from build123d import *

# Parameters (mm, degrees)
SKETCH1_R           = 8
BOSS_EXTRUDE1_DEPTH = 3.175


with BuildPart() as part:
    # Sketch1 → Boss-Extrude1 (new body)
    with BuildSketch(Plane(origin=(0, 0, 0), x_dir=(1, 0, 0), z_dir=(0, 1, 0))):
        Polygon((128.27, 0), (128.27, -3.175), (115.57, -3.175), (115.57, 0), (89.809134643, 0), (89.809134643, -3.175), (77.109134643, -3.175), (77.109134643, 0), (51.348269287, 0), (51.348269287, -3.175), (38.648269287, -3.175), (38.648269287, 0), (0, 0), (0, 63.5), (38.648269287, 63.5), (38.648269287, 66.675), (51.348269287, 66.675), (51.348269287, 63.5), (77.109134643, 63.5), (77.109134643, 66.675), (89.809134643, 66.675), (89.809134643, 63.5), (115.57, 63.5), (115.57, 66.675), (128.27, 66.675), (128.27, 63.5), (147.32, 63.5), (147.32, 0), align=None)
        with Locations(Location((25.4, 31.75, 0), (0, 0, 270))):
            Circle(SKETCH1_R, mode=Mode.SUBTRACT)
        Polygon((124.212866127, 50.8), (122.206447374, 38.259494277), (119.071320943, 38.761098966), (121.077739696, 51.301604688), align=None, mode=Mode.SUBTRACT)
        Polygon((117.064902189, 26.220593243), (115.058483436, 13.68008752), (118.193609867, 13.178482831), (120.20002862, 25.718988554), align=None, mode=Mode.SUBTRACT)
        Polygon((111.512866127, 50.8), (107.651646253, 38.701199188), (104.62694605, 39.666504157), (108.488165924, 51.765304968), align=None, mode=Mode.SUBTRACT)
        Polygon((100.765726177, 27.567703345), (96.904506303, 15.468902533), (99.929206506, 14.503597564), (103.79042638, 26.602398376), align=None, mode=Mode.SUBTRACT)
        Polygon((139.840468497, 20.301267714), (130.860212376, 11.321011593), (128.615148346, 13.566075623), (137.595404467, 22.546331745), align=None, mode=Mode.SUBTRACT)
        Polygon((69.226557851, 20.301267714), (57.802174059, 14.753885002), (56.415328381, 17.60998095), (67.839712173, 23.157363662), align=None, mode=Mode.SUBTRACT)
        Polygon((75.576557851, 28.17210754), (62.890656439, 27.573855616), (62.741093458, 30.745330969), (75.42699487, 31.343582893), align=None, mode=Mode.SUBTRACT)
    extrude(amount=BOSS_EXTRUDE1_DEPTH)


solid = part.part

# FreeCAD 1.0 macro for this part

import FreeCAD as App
import Part
import Sketcher
Q = App.Units.Quantity


def add_polygon(sketch, points):
    """Adds a closed chain of lines whose ends are joined by coincident constraints."""
    first, n = sketch.GeometryCount, len(points)
    for a, b in zip(points, points[1:] + points[:1]):
        sketch.addGeometry(Part.LineSegment(App.Vector(*a, 0), App.Vector(*b, 0)), False)
    for i in range(n):
        sketch.addConstraint(Sketcher.Constraint("Coincident", first + i, 2, first + (i + 1) % n, 1))

doc = App.newDocument("Part")
body = doc.addObject("PartDesign::Body", "Body")

# Sketch on XZ plane
sketch1 = body.newObject("Sketcher::SketchObject", "Sketch")
sketch1.AttachmentSupport = (doc.getObject("XZ_Plane"), [""])
sketch1.MapMode = "FlatFace"
add_polygon(sketch1, [(128.27, 3.175), (128.27, 0), (147.32, 0), (147.32, -63.5), (128.27, -63.5), (128.27, -66.675), (115.57, -66.675), (115.57, -63.5), (89.809135, -63.5), (89.809135, -66.675), (77.109135, -66.675), (77.109135, -63.5), (51.348269, -63.5), (51.348269, -66.675), (38.648269, -66.675), (38.648269, -63.5), (0, -63.5), (0, 0), (38.648269, 0), (38.648269, 3.175), (51.348269, 3.175), (51.348269, 0), (77.109135, 0), (77.109135, 3.175), (89.809135, 3.175), (89.809135, 0), (115.57, 0), (115.57, 3.175)])  # lines 0-27
add_polygon(sketch1, [(139.840468, -20.301268), (130.860212, -11.321012), (128.615148, -13.566076), (137.595404, -22.546332)])  # lines 28-31
add_polygon(sketch1, [(117.064902, -26.220593), (120.200029, -25.718989), (118.19361, -13.178483), (115.058483, -13.680088)])  # lines 32-35
add_polygon(sketch1, [(100.765726, -27.567703), (103.790426, -26.602398), (99.929207, -14.503598), (96.904506, -15.468903)])  # lines 36-39
add_polygon(sketch1, [(69.226558, -20.301268), (57.802174, -14.753885), (56.415328, -17.609981), (67.839712, -23.157364)])  # lines 40-43
add_polygon(sketch1, [(75.576558, -28.172108), (62.890656, -27.573856), (62.741093, -30.745331), (75.426995, -31.343583)])  # lines 44-47
add_polygon(sketch1, [(124.212866, -50.8), (122.206447, -38.259494), (119.071321, -38.761099), (121.07774, -51.301605)])  # lines 48-51
add_polygon(sketch1, [(111.512866, -50.8), (107.651646, -38.701199), (104.626946, -39.666504), (108.488166, -51.765305)])  # lines 52-55
sketch1.addGeometry(Part.Circle(App.Vector(25.4, -31.75, 0), App.Vector(0, 0, 1), 8), False)  # 56
sketch1.addConstraint(Sketcher.Constraint("Vertical", 0))
sketch1.addConstraint(Sketcher.Constraint("Horizontal", 1))
sketch1.addConstraint(Sketcher.Constraint("Vertical", 2))
sketch1.addConstraint(Sketcher.Constraint("Horizontal", 3))
sketch1.addConstraint(Sketcher.Constraint("Vertical", 4))
sketch1.addConstraint(Sketcher.Constraint("Horizontal", 5))
sketch1.addConstraint(Sketcher.Constraint("Vertical", 6))
sketch1.addConstraint(Sketcher.Constraint("Horizontal", 7))
sketch1.addConstraint(Sketcher.Constraint("Vertical", 8))
sketch1.addConstraint(Sketcher.Constraint("Horizontal", 9))
sketch1.addConstraint(Sketcher.Constraint("Vertical", 10))
sketch1.addConstraint(Sketcher.Constraint("Horizontal", 11))
sketch1.addConstraint(Sketcher.Constraint("Vertical", 12))
sketch1.addConstraint(Sketcher.Constraint("Horizontal", 13))
sketch1.addConstraint(Sketcher.Constraint("Vertical", 14))
sketch1.addConstraint(Sketcher.Constraint("Horizontal", 15))
sketch1.addConstraint(Sketcher.Constraint("Vertical", 16))
sketch1.addConstraint(Sketcher.Constraint("Horizontal", 17))
sketch1.addConstraint(Sketcher.Constraint("Vertical", 18))
sketch1.addConstraint(Sketcher.Constraint("Horizontal", 19))
sketch1.addConstraint(Sketcher.Constraint("Vertical", 20))
sketch1.addConstraint(Sketcher.Constraint("Horizontal", 21))
sketch1.addConstraint(Sketcher.Constraint("Vertical", 22))
sketch1.addConstraint(Sketcher.Constraint("Horizontal", 23))
sketch1.addConstraint(Sketcher.Constraint("Vertical", 24))
sketch1.addConstraint(Sketcher.Constraint("Horizontal", 25))
sketch1.addConstraint(Sketcher.Constraint("Vertical", 26))
sketch1.addConstraint(Sketcher.Constraint("Horizontal", 27))
sketch1.addConstraint(Sketcher.Constraint("Coincident", 16, 2, -1, 1))
sketch1.addConstraint(Sketcher.Constraint("PointOnObject", 0, 2, -1))
sketch1.addConstraint(Sketcher.Constraint("PointOnObject", 20, 2, -1))
sketch1.addConstraint(Sketcher.Constraint("PointOnObject", 24, 2, -1))
sketch1.addConstraint(Sketcher.Constraint("Perpendicular", 28, 29))
sketch1.addConstraint(Sketcher.Constraint("Perpendicular", 29, 30))
sketch1.addConstraint(Sketcher.Constraint("Perpendicular", 30, 31))
sketch1.addConstraint(Sketcher.Constraint("Perpendicular", 32, 33))
sketch1.addConstraint(Sketcher.Constraint("Perpendicular", 33, 34))
sketch1.addConstraint(Sketcher.Constraint("Perpendicular", 34, 35))
sketch1.addConstraint(Sketcher.Constraint("Perpendicular", 36, 37))
sketch1.addConstraint(Sketcher.Constraint("Perpendicular", 37, 38))
sketch1.addConstraint(Sketcher.Constraint("Perpendicular", 38, 39))
sketch1.addConstraint(Sketcher.Constraint("Perpendicular", 40, 41))
sketch1.addConstraint(Sketcher.Constraint("Perpendicular", 41, 42))
sketch1.addConstraint(Sketcher.Constraint("Perpendicular", 42, 43))
sketch1.addConstraint(Sketcher.Constraint("Perpendicular", 44, 45))
sketch1.addConstraint(Sketcher.Constraint("Perpendicular", 45, 46))
sketch1.addConstraint(Sketcher.Constraint("Perpendicular", 46, 47))
sketch1.addConstraint(Sketcher.Constraint("Parallel", 35, 48))
sketch1.addConstraint(Sketcher.Constraint("Perpendicular", 48, 49))
sketch1.addConstraint(Sketcher.Constraint("Perpendicular", 49, 50))
sketch1.addConstraint(Sketcher.Constraint("Perpendicular", 50, 51))
sketch1.addConstraint(Sketcher.Constraint("Parallel", 39, 52))
sketch1.addConstraint(Sketcher.Constraint("Perpendicular", 52, 53))
sketch1.addConstraint(Sketcher.Constraint("Perpendicular", 53, 54))
sketch1.addConstraint(Sketcher.Constraint("Perpendicular", 54, 55))
sketch1.addConstraint(Sketcher.Constraint("Horizontal", 3, 2, 6, 2))
sketch1.addConstraint(Sketcher.Constraint("Horizontal", 5, 2, 8, 2))
sketch1.addConstraint(Sketcher.Constraint("Horizontal", 7, 2, 10, 2))
sketch1.addConstraint(Sketcher.Constraint("Horizontal", 9, 2, 12, 2))
sketch1.addConstraint(Sketcher.Constraint("Horizontal", 11, 2, 14, 2))
sketch1.addConstraint(Sketcher.Constraint("Horizontal", 19, 2, 22, 2))
sketch1.addConstraint(Sketcher.Constraint("Horizontal", 23, 2, 26, 2))
sketch1.addConstraint(Sketcher.Constraint("Horizontal", 31, 2, 43, 2))
sketch1.addConstraint(Sketcher.Constraint("Horizontal", 51, 2, 55, 2))
sketch1.addConstraint(Sketcher.Constraint("Vertical", 0, 2, 3, 2))
sketch1.addConstraint(Sketcher.Constraint("Vertical", 14, 2, 17, 2))
sketch1.addConstraint(Sketcher.Constraint("Vertical", 12, 2, 19, 2))
sketch1.addConstraint(Sketcher.Constraint("Vertical", 10, 2, 21, 2))
sketch1.addConstraint(Sketcher.Constraint("Vertical", 8, 2, 23, 2))
sketch1.addConstraint(Sketcher.Constraint("Vertical", 6, 2, 25, 2))
sketch1.addConstraint(Sketcher.Constraint("Equal", 5, 9))
sketch1.addConstraint(Sketcher.Constraint("Equal", 7, 11))
sketch1.addConstraint(Sketcher.Constraint("Equal", 9, 13))
sketch1.addConstraint(Sketcher.Constraint("Equal", 0, 4))
sketch1.addConstraint(Sketcher.Constraint("Equal", 31, 32))
sketch1.addConstraint(Sketcher.Constraint("Equal", 30, 33))
sketch1.addConstraint(Sketcher.Constraint("Equal", 34, 36))
sketch1.addConstraint(Sketcher.Constraint("Equal", 35, 37))
sketch1.addConstraint(Sketcher.Constraint("Equal", 39, 40))
sketch1.addConstraint(Sketcher.Constraint("Equal", 38, 41))
sketch1.addConstraint(Sketcher.Constraint("Equal", 42, 44))
sketch1.addConstraint(Sketcher.Constraint("Equal", 43, 45))
sketch1.addConstraint(Sketcher.Constraint("Equal", 46, 48))
sketch1.addConstraint(Sketcher.Constraint("Equal", 47, 49))
sketch1.addConstraint(Sketcher.Constraint("Equal", 50, 52))
sketch1.addConstraint(Sketcher.Constraint("Equal", 51, 53))
sketch1.addConstraint(Sketcher.Constraint("DistanceX", 5, 2, 5, 1, Q("0.5 in")))
sketch1.addConstraint(Sketcher.Constraint("DistanceY", 2, 2, 2, 1, Q("2.5 in")))
sketch1.addConstraint(Sketcher.Constraint("DistanceX", -1, 1, 56, 3, Q("1 in")))
sketch1.addConstraint(Sketcher.Constraint("DistanceY", 51, 2, -1, 1, Q("2 in")))
sketch1.addConstraint(Sketcher.Constraint("Angle", 28, Q("135 deg")))
sketch1.addConstraint(Sketcher.Constraint("Distance", 28, Q("0.5 in")))
sketch1.addConstraint(Sketcher.Constraint("DistanceX", 1, 1, 1, 2, Q("0.75 in")))
sketch1.addConstraint(Sketcher.Constraint("DistanceX", -1, 1, 1, 2, Q("5.8 in")))
sketch1.addConstraint(Sketcher.Constraint("Angle", 36, Q("17.7 deg")))
sketch1.addConstraint(Sketcher.Constraint("Angle", 40, Q("154.1 deg")))
sketch1.addConstraint(Sketcher.Constraint("Angle", 44, Q("177.3 deg")))
sketch1.addConstraint(Sketcher.Constraint("DistanceX", 55, 2, 51, 2, Q("0.5 in")))
sketch1.addConstraint(Sketcher.Constraint("Diameter", 56, 16.0))
sketch1.addConstraint(Sketcher.Constraint("DistanceY", 0, 2, 0, 1, Q("0.125 in")))
sketch1.addConstraint(Sketcher.Constraint("DistanceY", 56, 3, -1, 1, Q("1.25 in")))
sketch1.addConstraint(Sketcher.Constraint("Angle", 32, Q("9.09 deg")))
sketch1.addConstraint(Sketcher.Constraint("DistanceX", 43, 2, 47, 2, Q("0.25 in")))
sketch1.addConstraint(Sketcher.Constraint("Distance", 29, Q("0.125 in")))
sketch1.addConstraint(Sketcher.Constraint("DistanceX", 39, 2, 35, 2, Q("0.6416998 in")))
sketch1.addConstraint(Sketcher.Constraint("DistanceX", 15, 2, 15, 1, 38.648269))
sketch1.addConstraint(Sketcher.Constraint("DistanceY", 36, 2, -1, 1, 26.602398))
sketch1.addConstraint(Sketcher.Constraint("DistanceY", 46, 2, 41, 2, 13.733602))
sketch1.addConstraint(Sketcher.Constraint("DistanceY", 48, 2, 35, 2, 12.038901))
sketch1.addConstraint(Sketcher.Constraint("DistanceY", 28, 2, -1, 1, 11.321012))
sketch1.addConstraint(Sketcher.Constraint("DistanceX", -1, 1, 29, 2, 128.615148))
sketch1.addConstraint(Sketcher.Constraint("DistanceX", -1, 1, 32, 2, 120.200029))
sketch1.addConstraint(Sketcher.Constraint("DistanceX", -1, 1, 41, 2, 56.415328))
sketch1.addConstraint(Sketcher.Constraint("DistanceX", -1, 1, 49, 2, 119.071321))
pad1 = body.newObject("PartDesign::Pad", "Pad")
pad1.Profile = sketch1
pad1.Length = Q("0.125 in")
pad1.Reversed = True

doc.recompute()
